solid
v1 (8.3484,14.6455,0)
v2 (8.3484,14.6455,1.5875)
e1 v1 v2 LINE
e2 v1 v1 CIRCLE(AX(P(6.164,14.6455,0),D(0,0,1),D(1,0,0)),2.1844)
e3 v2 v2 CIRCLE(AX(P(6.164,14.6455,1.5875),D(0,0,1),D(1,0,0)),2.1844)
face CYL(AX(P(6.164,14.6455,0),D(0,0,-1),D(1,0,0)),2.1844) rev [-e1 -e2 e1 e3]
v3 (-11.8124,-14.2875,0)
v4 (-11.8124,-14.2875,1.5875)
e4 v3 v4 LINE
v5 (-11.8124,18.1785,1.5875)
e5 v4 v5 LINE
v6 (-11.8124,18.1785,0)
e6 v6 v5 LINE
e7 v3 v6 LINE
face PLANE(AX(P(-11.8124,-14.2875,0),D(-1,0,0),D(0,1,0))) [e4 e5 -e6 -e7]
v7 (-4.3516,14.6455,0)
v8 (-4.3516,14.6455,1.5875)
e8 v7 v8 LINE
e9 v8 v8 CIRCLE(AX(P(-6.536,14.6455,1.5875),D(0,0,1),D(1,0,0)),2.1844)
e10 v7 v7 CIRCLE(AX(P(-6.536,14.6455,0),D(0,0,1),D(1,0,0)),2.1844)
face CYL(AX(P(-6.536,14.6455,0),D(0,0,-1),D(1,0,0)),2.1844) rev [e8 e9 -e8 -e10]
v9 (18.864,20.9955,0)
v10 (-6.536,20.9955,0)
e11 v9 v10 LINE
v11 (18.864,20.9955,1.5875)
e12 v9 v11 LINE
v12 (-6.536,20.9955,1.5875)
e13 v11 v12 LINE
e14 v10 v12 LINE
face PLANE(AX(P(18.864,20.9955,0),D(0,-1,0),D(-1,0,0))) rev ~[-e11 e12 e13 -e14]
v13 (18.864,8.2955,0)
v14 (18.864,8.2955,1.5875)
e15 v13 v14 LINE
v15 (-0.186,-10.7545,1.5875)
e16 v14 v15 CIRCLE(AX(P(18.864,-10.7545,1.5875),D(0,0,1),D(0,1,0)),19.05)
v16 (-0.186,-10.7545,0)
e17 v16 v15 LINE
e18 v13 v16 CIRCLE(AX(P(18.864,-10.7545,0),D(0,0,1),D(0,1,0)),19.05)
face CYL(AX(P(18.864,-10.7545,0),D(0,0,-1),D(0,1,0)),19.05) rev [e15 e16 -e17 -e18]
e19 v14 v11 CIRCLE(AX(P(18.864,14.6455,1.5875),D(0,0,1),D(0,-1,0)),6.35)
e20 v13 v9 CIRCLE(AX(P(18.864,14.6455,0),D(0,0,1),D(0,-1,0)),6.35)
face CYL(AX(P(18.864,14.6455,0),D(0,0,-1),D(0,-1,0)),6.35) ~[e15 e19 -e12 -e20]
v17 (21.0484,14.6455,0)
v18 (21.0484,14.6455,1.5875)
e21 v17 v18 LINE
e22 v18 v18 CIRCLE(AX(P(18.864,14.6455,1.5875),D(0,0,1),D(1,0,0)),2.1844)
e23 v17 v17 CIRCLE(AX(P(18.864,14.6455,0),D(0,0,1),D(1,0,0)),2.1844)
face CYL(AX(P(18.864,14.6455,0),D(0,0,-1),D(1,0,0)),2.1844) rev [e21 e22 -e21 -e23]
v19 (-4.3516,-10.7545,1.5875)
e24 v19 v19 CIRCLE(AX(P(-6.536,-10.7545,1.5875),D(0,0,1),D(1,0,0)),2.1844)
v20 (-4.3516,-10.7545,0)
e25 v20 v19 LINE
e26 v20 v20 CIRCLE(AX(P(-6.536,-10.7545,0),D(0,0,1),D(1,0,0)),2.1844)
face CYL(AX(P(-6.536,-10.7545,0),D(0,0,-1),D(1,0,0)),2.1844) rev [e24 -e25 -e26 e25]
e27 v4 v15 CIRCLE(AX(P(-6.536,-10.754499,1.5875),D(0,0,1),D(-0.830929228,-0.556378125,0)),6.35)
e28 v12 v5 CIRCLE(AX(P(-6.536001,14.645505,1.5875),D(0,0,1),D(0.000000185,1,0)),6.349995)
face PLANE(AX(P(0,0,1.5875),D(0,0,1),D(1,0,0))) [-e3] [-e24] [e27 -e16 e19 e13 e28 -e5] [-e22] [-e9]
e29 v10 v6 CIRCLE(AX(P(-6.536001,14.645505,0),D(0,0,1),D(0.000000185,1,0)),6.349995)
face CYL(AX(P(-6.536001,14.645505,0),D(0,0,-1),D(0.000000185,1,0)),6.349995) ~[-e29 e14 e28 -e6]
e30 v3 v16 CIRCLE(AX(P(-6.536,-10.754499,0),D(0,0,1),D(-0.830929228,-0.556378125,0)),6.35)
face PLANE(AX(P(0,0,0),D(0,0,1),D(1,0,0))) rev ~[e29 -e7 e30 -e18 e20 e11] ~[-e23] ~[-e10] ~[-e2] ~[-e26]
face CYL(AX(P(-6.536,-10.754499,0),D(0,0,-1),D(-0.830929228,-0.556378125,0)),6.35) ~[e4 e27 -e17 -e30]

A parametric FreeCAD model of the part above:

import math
import FreeCAD as App
import Part
import Sketcher
Q = App.Units.Quantity

doc = App.newDocument("Part")
params = doc.addObject("Spreadsheet::Sheet", "Params")
for row, (alias, value) in enumerate([
    ("sketch1_radius", "0.25 in"),
    ("sketch1_radius2", "0.75 in"),
    ("sketch1_diameter", "0.172 in"),
    ("pad1_length", "0.0625 in"),
], start=1):
    params.set(f"A{row}", alias)
    params.set(f"B{row}", "=" + value)
    params.setAlias(f"B{row}", alias)

body = doc.addObject("PartDesign::Body", "Body")

# Sketch on XY plane
sketch1 = body.newObject("Sketcher::SketchObject", "Sketch")
sketch1.AttachmentSupport = (doc.getObject("XY_Plane"), [""])
sketch1.MapMode = "FlatFace"
sketch1.addGeometry([
    Part.LineSegment(App.Vector(18.9, 21, 0), App.Vector(-6.5, 21, 0)),  # 0
    Part.ArcOfCircle(Part.Circle(App.Vector(-6.5, 14.6, 0), App.Vector(0, 0, 1), 6.3), math.radians(90), math.radians(146)),  # 1
    Part.LineSegment(App.Vector(-11.8, 18.2, 0), App.Vector(-11.8, -14.3, 0)),  # 2
    Part.ArcOfCircle(Part.Circle(App.Vector(-6.5, -10.8, 0), App.Vector(0, 0, 1), 6.3), math.radians(-146), math.radians(0)),  # 3
    Part.ArcOfCircle(Part.Circle(App.Vector(18.9, -10.8, 0), App.Vector(0, 0, 1), 19.1), math.radians(90), math.radians(180)),  # 4
    Part.ArcOfCircle(Part.Circle(App.Vector(18.9, 14.6, 0), App.Vector(0, 0, 1), 6.3), math.radians(-90), math.radians(90)),  # 5
    Part.Circle(App.Vector(-6.5, -10.8, 0), App.Vector(0, 0, 1), 2.2),  # 6
    Part.Circle(App.Vector(-6.5, 14.6, 0), App.Vector(0, 0, 1), 2.2),  # 7
    Part.Circle(App.Vector(6.2, 14.6, 0), App.Vector(0, 0, 1), 2.2),  # 8
    Part.Circle(App.Vector(18.9, 14.6, 0), App.Vector(0, 0, 1), 2.2),  # 9
], False)
sketch1.addConstraint([
    Sketcher.Constraint("Tangent", 0, 2, 1, 1),
    Sketcher.Constraint("Coincident", 1, 2, 2, 1),
    Sketcher.Constraint("Coincident", 2, 2, 3, 1),
    Sketcher.Constraint("Tangent", 3, 2, 4, 2),
    Sketcher.Constraint("Tangent", 4, 1, 5, 1),
    Sketcher.Constraint("Tangent", 5, 2, 0, 1),
    Sketcher.Constraint("Horizontal", 0),
    Sketcher.Constraint("Vertical", 2),
    Sketcher.Constraint("Coincident", 6, 3, 3, 3),
    Sketcher.Constraint("Coincident", 7, 3, 1, 3),
    Sketcher.Constraint("Coincident", 9, 3, 5, 3),
    Sketcher.Constraint("Equal", 1, 3),
    Sketcher.Constraint("Equal", 3, 5),
    Sketcher.Constraint("Equal", 6, 7),
    Sketcher.Constraint("Equal", 7, 8),
    Sketcher.Constraint("Equal", 8, 9),
    Sketcher.Constraint("Horizontal", 3, 3, 4, 3),
    Sketcher.Constraint("Horizontal", 7, 3, 8, 3),
    Sketcher.Constraint("Vertical", 1, 3, 3, 3),
    Sketcher.Constraint("Vertical", 4, 3, 5, 3),
    Sketcher.Constraint("Radius", 1, Q("0.25 in")),
    Sketcher.Constraint("Radius", 4, Q("0.75 in")),
    Sketcher.Constraint("Diameter", 6, Q("0.172 in")),
    Sketcher.Constraint("DistanceX", 1, 3, 8, 3, Q("0.5 in")),
    Sketcher.Constraint("DistanceY", 2, 2, 2, 1, Q("1.2782 in")),
    Sketcher.Constraint("DistanceY", 2, 2, -1, 1, Q("0.5625 in")),
    Sketcher.Constraint("DistanceX", 1, 3, -1, 1, 6.536),
])
sketch1.setExpression("Constraints[20]", "Params.sketch1_radius")
sketch1.setExpression("Constraints[21]", "Params.sketch1_radius2")
sketch1.setExpression("Constraints[22]", "Params.sketch1_diameter")
pad1 = body.newObject("PartDesign::Pad", "Pad")
pad1.Profile = sketch1
pad1.setExpression("Length", "Params.pad1_length")

doc.recompute()
